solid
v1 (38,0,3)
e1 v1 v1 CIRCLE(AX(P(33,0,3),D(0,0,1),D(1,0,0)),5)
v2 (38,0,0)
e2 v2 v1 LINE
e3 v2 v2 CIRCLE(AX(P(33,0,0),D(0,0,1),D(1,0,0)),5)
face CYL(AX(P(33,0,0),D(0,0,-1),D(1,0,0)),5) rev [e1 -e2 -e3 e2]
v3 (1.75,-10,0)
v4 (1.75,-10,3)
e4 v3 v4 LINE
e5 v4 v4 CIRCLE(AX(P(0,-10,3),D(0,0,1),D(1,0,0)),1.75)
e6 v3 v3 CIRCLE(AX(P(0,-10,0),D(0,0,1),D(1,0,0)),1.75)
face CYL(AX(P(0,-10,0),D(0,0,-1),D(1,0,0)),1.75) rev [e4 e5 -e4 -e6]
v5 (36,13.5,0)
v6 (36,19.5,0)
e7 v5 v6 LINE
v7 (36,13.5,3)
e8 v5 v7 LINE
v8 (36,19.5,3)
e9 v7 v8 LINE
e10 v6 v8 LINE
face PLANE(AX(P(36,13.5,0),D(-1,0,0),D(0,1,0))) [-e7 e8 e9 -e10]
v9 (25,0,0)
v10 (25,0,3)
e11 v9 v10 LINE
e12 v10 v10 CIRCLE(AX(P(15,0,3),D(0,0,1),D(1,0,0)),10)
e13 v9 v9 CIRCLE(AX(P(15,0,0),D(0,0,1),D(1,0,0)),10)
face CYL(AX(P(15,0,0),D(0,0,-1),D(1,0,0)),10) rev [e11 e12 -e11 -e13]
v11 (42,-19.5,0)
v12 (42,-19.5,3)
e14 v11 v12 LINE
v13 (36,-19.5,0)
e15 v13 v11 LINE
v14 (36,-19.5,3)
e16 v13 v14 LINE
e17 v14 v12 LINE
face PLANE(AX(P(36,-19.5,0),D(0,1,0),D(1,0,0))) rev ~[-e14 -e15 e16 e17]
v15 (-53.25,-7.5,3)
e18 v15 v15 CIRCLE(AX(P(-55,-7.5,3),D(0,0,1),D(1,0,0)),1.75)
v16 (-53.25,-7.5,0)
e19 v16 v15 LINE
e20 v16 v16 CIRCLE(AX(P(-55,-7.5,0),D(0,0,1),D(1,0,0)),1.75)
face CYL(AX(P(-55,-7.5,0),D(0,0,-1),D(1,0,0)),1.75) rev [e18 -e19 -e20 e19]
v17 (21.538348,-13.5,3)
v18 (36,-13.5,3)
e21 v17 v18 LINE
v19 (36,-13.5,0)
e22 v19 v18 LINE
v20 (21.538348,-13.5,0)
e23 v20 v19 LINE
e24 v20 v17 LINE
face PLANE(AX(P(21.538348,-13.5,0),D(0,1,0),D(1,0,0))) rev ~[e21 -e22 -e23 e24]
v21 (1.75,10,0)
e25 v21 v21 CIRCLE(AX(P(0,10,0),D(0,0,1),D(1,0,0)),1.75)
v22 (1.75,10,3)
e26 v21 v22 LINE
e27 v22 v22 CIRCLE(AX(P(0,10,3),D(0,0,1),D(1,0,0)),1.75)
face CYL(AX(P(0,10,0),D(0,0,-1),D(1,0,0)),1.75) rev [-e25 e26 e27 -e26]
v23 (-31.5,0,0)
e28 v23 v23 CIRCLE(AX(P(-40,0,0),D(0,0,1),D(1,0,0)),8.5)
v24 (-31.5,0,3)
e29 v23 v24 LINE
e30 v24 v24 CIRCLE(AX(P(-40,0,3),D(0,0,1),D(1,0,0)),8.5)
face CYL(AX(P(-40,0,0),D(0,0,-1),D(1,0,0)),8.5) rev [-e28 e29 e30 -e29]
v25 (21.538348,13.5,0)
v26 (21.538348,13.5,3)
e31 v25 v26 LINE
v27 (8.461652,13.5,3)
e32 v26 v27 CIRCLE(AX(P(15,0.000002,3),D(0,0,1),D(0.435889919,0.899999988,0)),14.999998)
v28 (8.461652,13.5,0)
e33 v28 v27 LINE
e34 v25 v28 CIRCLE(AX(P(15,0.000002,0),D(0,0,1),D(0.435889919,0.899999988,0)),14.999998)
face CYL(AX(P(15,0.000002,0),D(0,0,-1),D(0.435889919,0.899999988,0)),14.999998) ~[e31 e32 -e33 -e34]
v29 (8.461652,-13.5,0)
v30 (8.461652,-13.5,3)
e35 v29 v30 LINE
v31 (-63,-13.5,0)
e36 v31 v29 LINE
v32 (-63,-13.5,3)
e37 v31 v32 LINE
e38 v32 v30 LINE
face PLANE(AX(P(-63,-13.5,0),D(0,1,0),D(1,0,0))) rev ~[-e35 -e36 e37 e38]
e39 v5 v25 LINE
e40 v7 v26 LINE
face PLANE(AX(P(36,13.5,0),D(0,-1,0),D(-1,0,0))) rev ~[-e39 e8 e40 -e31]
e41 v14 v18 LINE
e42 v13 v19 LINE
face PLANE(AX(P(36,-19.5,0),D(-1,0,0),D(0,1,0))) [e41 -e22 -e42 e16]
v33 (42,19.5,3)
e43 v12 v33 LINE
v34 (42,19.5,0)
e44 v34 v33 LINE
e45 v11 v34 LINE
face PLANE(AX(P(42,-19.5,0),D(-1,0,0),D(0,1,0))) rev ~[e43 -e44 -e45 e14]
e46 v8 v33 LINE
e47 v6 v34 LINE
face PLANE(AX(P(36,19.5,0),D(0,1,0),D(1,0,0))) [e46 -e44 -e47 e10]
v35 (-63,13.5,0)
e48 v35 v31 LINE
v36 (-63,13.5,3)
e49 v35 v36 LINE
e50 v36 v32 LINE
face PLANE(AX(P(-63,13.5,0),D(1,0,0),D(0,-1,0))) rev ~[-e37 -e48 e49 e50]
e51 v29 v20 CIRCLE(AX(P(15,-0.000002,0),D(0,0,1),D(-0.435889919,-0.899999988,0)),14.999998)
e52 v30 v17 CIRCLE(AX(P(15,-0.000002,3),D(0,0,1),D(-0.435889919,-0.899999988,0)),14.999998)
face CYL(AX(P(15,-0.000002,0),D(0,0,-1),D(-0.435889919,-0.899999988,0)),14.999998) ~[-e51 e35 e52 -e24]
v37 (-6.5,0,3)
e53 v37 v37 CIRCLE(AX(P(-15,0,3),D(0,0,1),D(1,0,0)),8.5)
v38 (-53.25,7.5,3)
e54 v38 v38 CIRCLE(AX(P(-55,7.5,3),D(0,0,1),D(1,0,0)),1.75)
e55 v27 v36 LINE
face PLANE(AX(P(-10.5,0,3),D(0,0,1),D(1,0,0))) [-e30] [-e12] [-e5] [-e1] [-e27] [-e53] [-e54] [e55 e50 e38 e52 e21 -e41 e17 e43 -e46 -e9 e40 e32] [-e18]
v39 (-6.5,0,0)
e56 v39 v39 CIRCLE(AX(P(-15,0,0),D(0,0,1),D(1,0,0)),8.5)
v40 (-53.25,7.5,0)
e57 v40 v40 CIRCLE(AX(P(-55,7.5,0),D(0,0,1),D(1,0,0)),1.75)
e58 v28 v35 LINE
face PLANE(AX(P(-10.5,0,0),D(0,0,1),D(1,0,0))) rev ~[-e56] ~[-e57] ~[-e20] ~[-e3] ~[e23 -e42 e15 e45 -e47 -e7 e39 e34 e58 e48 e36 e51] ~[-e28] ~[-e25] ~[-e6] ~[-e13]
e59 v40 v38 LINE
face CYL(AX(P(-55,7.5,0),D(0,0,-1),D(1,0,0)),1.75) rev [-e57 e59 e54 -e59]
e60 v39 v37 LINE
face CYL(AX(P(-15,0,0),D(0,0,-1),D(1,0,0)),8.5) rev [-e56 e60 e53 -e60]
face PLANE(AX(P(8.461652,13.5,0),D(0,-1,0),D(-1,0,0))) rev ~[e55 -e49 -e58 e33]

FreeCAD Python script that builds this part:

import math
import FreeCAD as App
import Part
import Sketcher
from FreeCAD import Vector

doc = App.newDocument("Part")
body = doc.addObject("PartDesign::Body", "Body")

# Sketch on XY plane
sketch1 = doc.addObject("Sketcher::SketchObject", "Sketch")
body.addObject(sketch1)
sketch1.AttachmentSupport = (doc.XY_Plane, [""])
sketch1.MapMode = "FlatFace"
sketch1.addGeometry(Part.LineSegment(Vector(36, 13.5, 0), Vector(21.5, 13.5, 0)), False)
sketch1.addGeometry(Part.ArcOfCircle(Part.Circle(Vector(15, 0, 0), Vector(0, 0, 1), 15), math.radians(64), math.radians(116)), False)
sketch1.addGeometry(Part.LineSegment(Vector(8.5, 13.5, 0), Vector(-63, 13.5, 0)), False)
sketch1.addGeometry(Part.LineSegment(Vector(-63, 13.5, 0), Vector(-63, -13.5, 0)), False)
sketch1.addGeometry(Part.LineSegment(Vector(-63, -13.5, 0), Vector(8.5, -13.5, 0)), False)
sketch1.addGeometry(Part.ArcOfCircle(Part.Circle(Vector(15, 0, 0), Vector(0, 0, 1), 15), math.radians(-116), math.radians(-64)), False)
sketch1.addGeometry(Part.LineSegment(Vector(21.5, -13.5, 0), Vector(36, -13.5, 0)), False)
sketch1.addGeometry(Part.LineSegment(Vector(36, -13.5, 0), Vector(36, -19.5, 0)), False)
sketch1.addGeometry(Part.LineSegment(Vector(36, -19.5, 0), Vector(42, -19.5, 0)), False)
sketch1.addGeometry(Part.LineSegment(Vector(42, -19.5, 0), Vector(42, 19.5, 0)), False)
sketch1.addGeometry(Part.LineSegment(Vector(42, 19.5, 0), Vector(36, 19.5, 0)), False)
sketch1.addGeometry(Part.LineSegment(Vector(36, 19.5, 0), Vector(36, 13.5, 0)), False)
sketch1.addGeometry(Part.Circle(Vector(-55, -7.5, 0), Vector(0, 0, 1), 1.8), False)
sketch1.addGeometry(Part.Circle(Vector(0, -10, 0), Vector(0, 0, 1), 1.8), False)
sketch1.addGeometry(Part.Circle(Vector(-40, 0, 0), Vector(0, 0, 1), 8.5), False)
sketch1.addGeometry(Part.Circle(Vector(-15, 0, 0), Vector(0, 0, 1), 8.5), False)
sketch1.addGeometry(Part.Circle(Vector(-55, 7.5, 0), Vector(0, 0, 1), 1.8), False)
sketch1.addGeometry(Part.Circle(Vector(15, 0, 0), Vector(0, 0, 1), 10), False)
sketch1.addGeometry(Part.Circle(Vector(33, 0, 0), Vector(0, 0, 1), 5), False)
sketch1.addGeometry(Part.Circle(Vector(0, 10, 0), Vector(0, 0, 1), 1.8), False)
sketch1.addConstraint(Sketcher.Constraint("Coincident", 0, 2, 1, 1))
sketch1.addConstraint(Sketcher.Constraint("Coincident", 1, 2, 2, 1))
sketch1.addConstraint(Sketcher.Constraint("Coincident", 2, 2, 3, 1))
sketch1.addConstraint(Sketcher.Constraint("Coincident", 3, 2, 4, 1))
sketch1.addConstraint(Sketcher.Constraint("Coincident", 4, 2, 5, 1))
sketch1.addConstraint(Sketcher.Constraint("Coincident", 5, 2, 6, 1))
sketch1.addConstraint(Sketcher.Constraint("Coincident", 6, 2, 7, 1))
sketch1.addConstraint(Sketcher.Constraint("Coincident", 7, 2, 8, 1))
sketch1.addConstraint(Sketcher.Constraint("Coincident", 8, 2, 9, 1))
sketch1.addConstraint(Sketcher.Constraint("Coincident", 9, 2, 10, 1))
sketch1.addConstraint(Sketcher.Constraint("Coincident", 10, 2, 11, 1))
sketch1.addConstraint(Sketcher.Constraint("Coincident", 11, 2, 0, 1))
sketch1.addConstraint(Sketcher.Constraint("Horizontal", 0))
sketch1.addConstraint(Sketcher.Constraint("Horizontal", 2))
sketch1.addConstraint(Sketcher.Constraint("Vertical", 3))
sketch1.addConstraint(Sketcher.Constraint("Horizontal", 4))
sketch1.addConstraint(Sketcher.Constraint("Horizontal", 6))
sketch1.addConstraint(Sketcher.Constraint("Vertical", 7))
sketch1.addConstraint(Sketcher.Constraint("Horizontal", 8))
sketch1.addConstraint(Sketcher.Constraint("Vertical", 9))
sketch1.addConstraint(Sketcher.Constraint("Horizontal", 10))
sketch1.addConstraint(Sketcher.Constraint("Vertical", 11))
sketch1.addConstraint(Sketcher.Constraint("Coincident", 5, 3, 1, 3))
sketch1.addConstraint(Sketcher.Constraint("Coincident", 17, 3, 1, 3))
sketch1.addConstraint(Sketcher.Constraint("Equal", 1, 5))
sketch1.addConstraint(Sketcher.Constraint("Equal", 12, 13))
sketch1.addConstraint(Sketcher.Constraint("Equal", 14, 15))
sketch1.addConstraint(Sketcher.Constraint("Equal", 13, 16))
sketch1.addConstraint(Sketcher.Constraint("Equal", 16, 19))
sketch1.addConstraint(Sketcher.Constraint("Symmetric", 1, 3, 15, 3, -1, 1))
sketch1.addConstraint(Sketcher.Constraint("Symmetric", 13, 3, 19, 3, -1, 1))
sketch1.addConstraint(Sketcher.Constraint("Symmetric", 12, 3, 16, 3, -1))
sketch1.addConstraint(Sketcher.Constraint("Symmetric", 1, 2, 4, 2, -1))
sketch1.addConstraint(Sketcher.Constraint("Symmetric", 7, 2, 10, 2, -1))
sketch1.addConstraint(Sketcher.Constraint("PointOnObject", 13, 3, -2))
sketch1.addConstraint(Sketcher.Constraint("PointOnObject", 14, 3, -1))
sketch1.addConstraint(Sketcher.Constraint("PointOnObject", 18, 3, -1))
sketch1.addConstraint(Sketcher.Constraint("Horizontal", 0, 2, 1, 2))
sketch1.addConstraint(Sketcher.Constraint("Horizontal", 4, 2, 5, 2))
sketch1.addConstraint(Sketcher.Constraint("Equal", 10, 7))
sketch1.addConstraint(Sketcher.Constraint("Diameter", 14, 17.0))
sketch1.addConstraint(Sketcher.Constraint("Diameter", 17, 20.0))
sketch1.addConstraint(Sketcher.Constraint("Diameter", 18, 10.0))
sketch1.addConstraint(Sketcher.Constraint("Radius", 1, 14.999998))
sketch1.addConstraint(Sketcher.Constraint("Diameter", 12, 3.5))
sketch1.addConstraint(Sketcher.Constraint("DistanceX", 8, 1, 8, 2, 6.0))
sketch1.addConstraint(Sketcher.Constraint("DistanceY", 3, 2, 3, 1, 27.0))
sketch1.addConstraint(Sketcher.Constraint("DistanceX", -1, 1, 1, 3, 15.0))
sketch1.addConstraint(Sketcher.Constraint("DistanceX", 12, 3, -1, 1, 55.0))
sketch1.addConstraint(Sketcher.Constraint("DistanceY", 13, 3, -1, 1, 10.0))
sketch1.addConstraint(Sketcher.Constraint("DistanceX", 14, 3, -1, 1, 40.0))
sketch1.addConstraint(Sketcher.Constraint("DistanceX", -1, 1, 18, 3, 33.0))
sketch1.addConstraint(Sketcher.Constraint("DistanceX", 2, 2, -1, 1, 63.0))
sketch1.addConstraint(Sketcher.Constraint("DistanceX", -1, 1, 6, 2, 36.0))
sketch1.addConstraint(Sketcher.Constraint("DistanceY", 12, 3, 16, 3, 15.0))
pad1 = doc.addObject("PartDesign::Pad", "Pad")
body.addObject(pad1)
pad1.Profile = sketch1
pad1.Length = 3

doc.recompute()
